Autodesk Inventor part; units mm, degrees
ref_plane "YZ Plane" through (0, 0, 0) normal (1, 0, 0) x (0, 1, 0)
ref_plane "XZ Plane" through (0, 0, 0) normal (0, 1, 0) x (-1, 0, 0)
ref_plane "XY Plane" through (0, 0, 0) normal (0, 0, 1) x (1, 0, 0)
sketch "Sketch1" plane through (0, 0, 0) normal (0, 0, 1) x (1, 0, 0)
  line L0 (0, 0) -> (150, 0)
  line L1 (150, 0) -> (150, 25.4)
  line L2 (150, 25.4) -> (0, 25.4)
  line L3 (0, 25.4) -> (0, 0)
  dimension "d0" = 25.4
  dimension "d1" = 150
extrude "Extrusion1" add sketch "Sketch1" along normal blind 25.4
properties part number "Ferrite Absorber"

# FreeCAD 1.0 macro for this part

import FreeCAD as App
import Part
import Sketcher
Q = App.Units.Quantity


def add_polygon(sketch, points):
    """Adds a closed chain of lines whose ends are joined by coincident constraints."""
    first, n = sketch.GeometryCount, len(points)
    for a, b in zip(points, points[1:] + points[:1]):
        sketch.addGeometry(Part.LineSegment(App.Vector(*a, 0), App.Vector(*b, 0)), False)
    for i in range(n):
        sketch.addConstraint(Sketcher.Constraint("Coincident", first + i, 2, first + (i + 1) % n, 1))

doc = App.newDocument("Part")
body = doc.addObject("PartDesign::Body", "Body")

# Sketch on XY plane
sketch1 = body.newObject("Sketcher::SketchObject", "Sketch")
sketch1.AttachmentSupport = (doc.getObject("XY_Plane"), [""])
sketch1.MapMode = "FlatFace"
add_polygon(sketch1, [(0, 25.4), (0, 0), (150, 0), (150, 25.4)])  # lines 0-3
sketch1.addConstraint(Sketcher.Constraint("Vertical", 0))
sketch1.addConstraint(Sketcher.Constraint("Horizontal", 1))
sketch1.addConstraint(Sketcher.Constraint("Vertical", 2))
sketch1.addConstraint(Sketcher.Constraint("Horizontal", 3))
sketch1.addConstraint(Sketcher.Constraint("Coincident", 0, 2, -1, 1))
sketch1.addConstraint(Sketcher.Constraint("DistanceY", 0, 2, 0, 1, Q("1 in")))
sketch1.addConstraint(Sketcher.Constraint("DistanceX", 1, 1, 1, 2, Q("5.9055 in")))
pad1 = body.newObject("PartDesign::Pad", "Pad")
pad1.Profile = sketch1
pad1.Length = Q("1 in")

doc.recompute()
